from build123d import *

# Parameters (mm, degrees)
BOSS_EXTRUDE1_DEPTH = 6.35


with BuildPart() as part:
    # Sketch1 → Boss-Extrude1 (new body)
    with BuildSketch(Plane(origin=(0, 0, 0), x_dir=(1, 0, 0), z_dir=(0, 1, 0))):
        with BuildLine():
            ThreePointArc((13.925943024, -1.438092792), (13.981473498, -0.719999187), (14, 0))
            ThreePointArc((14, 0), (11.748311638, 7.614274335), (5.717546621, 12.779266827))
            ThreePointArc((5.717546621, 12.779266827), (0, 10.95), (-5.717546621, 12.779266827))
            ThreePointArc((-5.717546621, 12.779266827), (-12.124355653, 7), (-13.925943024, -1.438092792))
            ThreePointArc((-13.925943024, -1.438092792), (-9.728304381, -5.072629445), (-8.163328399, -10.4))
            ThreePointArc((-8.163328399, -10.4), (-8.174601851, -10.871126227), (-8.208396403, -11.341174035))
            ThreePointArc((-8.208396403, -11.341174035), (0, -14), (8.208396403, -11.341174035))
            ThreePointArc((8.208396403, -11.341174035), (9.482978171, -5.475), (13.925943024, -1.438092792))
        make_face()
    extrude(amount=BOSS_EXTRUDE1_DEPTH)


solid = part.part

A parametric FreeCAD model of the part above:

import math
import FreeCAD as App
import Part
import Sketcher
from FreeCAD import Vector

doc = App.newDocument("Part")
body = doc.addObject("PartDesign::Body", "Body")

sketch1 = body.newObject("Sketcher::SketchObject", "Sketch")
sketch1.AttachmentSupport = (doc.getObject("XZ_Plane"), [""])
sketch1.MapMode = "FlatFace"
sketch1.addGeometry([
    Part.ArcOfCircle(Part.Circle(Vector(0, 0, 0), Vector(0, 0, 1), 14), math.radians(0), math.radians(5.9)),
    Part.ArcOfCircle(Part.Circle(Vector(0, 0, 0), Vector(0, 0, 1), 14), math.radians(-66), math.radians(0)),
    Part.ArcOfCircle(Part.Circle(Vector(0, -20.8, 0), Vector(0, 0, 1), 9.8), math.radians(55), math.radians(125)),
    Part.ArcOfCircle(Part.Circle(Vector(0, 0, 0), Vector(0, 0, 1), 14), math.radians(174), math.radians(246)),
    Part.ArcOfCircle(Part.Circle(Vector(-18, 10.4, 0), Vector(0, 0, 1), 9.8), math.radians(-65), math.radians(0)),
    Part.ArcOfCircle(Part.Circle(Vector(-18, 10.4, 0), Vector(0, 0, 1), 9.8), math.radians(0), math.radians(5.48)),
    Part.ArcOfCircle(Part.Circle(Vector(0, 0, 0), Vector(0, 0, 1), 14), math.radians(54), math.radians(126)),
    Part.ArcOfCircle(Part.Circle(Vector(18, 10.4, 0), Vector(0, 0, 1), 9.8), math.radians(175), math.radians(245)),
], False)
sketch1.addConstraint([
    Sketcher.Constraint("Tangent", 0, 1, 1, 2),
    Sketcher.Constraint("Coincident", 1, 1, 2, 1),
    Sketcher.Constraint("Coincident", 2, 2, 3, 2),
    Sketcher.Constraint("Coincident", 3, 1, 4, 1),
    Sketcher.Constraint("Tangent", 4, 2, 5, 1),
    Sketcher.Constraint("Coincident", 5, 2, 6, 2),
    Sketcher.Constraint("Coincident", 6, 1, 7, 1),
    Sketcher.Constraint("Coincident", 7, 2, 0, 2),
    Sketcher.Constraint("Coincident", 0, 3, -1, 1),
    Sketcher.Constraint("Coincident", 3, 3, -1, 1),
    Sketcher.Constraint("Coincident", 6, 3, -1, 1),
    Sketcher.Constraint("Equal", 0, 1),
    Sketcher.Constraint("Equal", 1, 3),
    Sketcher.Constraint("Equal", 2, 4),
    Sketcher.Constraint("Equal", 4, 5),
    Sketcher.Constraint("Equal", 3, 6),
    Sketcher.Constraint("Equal", 5, 7),
    Sketcher.Constraint("Symmetric", 4, 3, 7, 3, -2),
    Sketcher.Constraint("PointOnObject", 2, 3, -2),
    Sketcher.Constraint("PointOnObject", 0, 1, -1),
    Sketcher.Constraint("Horizontal", 7, 3, 4, 2),
    Sketcher.Constraint("Radius", 0, 14.0),
    Sketcher.Constraint("Radius", 2, 9.85),
    Sketcher.Constraint("DistanceY", 2, 3, -1, 1, 20.8),
    Sketcher.Constraint("DistanceY", -1, 1, 4, 3, 10.4),
    Sketcher.Constraint("DistanceX", 4, 3, -1, 1, 18.013328),
])
pad1 = body.newObject("PartDesign::Pad", "Pad")
pad1.Profile = sketch1
pad1.Length = 6.35
pad1.Reversed = True

doc.recompute()
